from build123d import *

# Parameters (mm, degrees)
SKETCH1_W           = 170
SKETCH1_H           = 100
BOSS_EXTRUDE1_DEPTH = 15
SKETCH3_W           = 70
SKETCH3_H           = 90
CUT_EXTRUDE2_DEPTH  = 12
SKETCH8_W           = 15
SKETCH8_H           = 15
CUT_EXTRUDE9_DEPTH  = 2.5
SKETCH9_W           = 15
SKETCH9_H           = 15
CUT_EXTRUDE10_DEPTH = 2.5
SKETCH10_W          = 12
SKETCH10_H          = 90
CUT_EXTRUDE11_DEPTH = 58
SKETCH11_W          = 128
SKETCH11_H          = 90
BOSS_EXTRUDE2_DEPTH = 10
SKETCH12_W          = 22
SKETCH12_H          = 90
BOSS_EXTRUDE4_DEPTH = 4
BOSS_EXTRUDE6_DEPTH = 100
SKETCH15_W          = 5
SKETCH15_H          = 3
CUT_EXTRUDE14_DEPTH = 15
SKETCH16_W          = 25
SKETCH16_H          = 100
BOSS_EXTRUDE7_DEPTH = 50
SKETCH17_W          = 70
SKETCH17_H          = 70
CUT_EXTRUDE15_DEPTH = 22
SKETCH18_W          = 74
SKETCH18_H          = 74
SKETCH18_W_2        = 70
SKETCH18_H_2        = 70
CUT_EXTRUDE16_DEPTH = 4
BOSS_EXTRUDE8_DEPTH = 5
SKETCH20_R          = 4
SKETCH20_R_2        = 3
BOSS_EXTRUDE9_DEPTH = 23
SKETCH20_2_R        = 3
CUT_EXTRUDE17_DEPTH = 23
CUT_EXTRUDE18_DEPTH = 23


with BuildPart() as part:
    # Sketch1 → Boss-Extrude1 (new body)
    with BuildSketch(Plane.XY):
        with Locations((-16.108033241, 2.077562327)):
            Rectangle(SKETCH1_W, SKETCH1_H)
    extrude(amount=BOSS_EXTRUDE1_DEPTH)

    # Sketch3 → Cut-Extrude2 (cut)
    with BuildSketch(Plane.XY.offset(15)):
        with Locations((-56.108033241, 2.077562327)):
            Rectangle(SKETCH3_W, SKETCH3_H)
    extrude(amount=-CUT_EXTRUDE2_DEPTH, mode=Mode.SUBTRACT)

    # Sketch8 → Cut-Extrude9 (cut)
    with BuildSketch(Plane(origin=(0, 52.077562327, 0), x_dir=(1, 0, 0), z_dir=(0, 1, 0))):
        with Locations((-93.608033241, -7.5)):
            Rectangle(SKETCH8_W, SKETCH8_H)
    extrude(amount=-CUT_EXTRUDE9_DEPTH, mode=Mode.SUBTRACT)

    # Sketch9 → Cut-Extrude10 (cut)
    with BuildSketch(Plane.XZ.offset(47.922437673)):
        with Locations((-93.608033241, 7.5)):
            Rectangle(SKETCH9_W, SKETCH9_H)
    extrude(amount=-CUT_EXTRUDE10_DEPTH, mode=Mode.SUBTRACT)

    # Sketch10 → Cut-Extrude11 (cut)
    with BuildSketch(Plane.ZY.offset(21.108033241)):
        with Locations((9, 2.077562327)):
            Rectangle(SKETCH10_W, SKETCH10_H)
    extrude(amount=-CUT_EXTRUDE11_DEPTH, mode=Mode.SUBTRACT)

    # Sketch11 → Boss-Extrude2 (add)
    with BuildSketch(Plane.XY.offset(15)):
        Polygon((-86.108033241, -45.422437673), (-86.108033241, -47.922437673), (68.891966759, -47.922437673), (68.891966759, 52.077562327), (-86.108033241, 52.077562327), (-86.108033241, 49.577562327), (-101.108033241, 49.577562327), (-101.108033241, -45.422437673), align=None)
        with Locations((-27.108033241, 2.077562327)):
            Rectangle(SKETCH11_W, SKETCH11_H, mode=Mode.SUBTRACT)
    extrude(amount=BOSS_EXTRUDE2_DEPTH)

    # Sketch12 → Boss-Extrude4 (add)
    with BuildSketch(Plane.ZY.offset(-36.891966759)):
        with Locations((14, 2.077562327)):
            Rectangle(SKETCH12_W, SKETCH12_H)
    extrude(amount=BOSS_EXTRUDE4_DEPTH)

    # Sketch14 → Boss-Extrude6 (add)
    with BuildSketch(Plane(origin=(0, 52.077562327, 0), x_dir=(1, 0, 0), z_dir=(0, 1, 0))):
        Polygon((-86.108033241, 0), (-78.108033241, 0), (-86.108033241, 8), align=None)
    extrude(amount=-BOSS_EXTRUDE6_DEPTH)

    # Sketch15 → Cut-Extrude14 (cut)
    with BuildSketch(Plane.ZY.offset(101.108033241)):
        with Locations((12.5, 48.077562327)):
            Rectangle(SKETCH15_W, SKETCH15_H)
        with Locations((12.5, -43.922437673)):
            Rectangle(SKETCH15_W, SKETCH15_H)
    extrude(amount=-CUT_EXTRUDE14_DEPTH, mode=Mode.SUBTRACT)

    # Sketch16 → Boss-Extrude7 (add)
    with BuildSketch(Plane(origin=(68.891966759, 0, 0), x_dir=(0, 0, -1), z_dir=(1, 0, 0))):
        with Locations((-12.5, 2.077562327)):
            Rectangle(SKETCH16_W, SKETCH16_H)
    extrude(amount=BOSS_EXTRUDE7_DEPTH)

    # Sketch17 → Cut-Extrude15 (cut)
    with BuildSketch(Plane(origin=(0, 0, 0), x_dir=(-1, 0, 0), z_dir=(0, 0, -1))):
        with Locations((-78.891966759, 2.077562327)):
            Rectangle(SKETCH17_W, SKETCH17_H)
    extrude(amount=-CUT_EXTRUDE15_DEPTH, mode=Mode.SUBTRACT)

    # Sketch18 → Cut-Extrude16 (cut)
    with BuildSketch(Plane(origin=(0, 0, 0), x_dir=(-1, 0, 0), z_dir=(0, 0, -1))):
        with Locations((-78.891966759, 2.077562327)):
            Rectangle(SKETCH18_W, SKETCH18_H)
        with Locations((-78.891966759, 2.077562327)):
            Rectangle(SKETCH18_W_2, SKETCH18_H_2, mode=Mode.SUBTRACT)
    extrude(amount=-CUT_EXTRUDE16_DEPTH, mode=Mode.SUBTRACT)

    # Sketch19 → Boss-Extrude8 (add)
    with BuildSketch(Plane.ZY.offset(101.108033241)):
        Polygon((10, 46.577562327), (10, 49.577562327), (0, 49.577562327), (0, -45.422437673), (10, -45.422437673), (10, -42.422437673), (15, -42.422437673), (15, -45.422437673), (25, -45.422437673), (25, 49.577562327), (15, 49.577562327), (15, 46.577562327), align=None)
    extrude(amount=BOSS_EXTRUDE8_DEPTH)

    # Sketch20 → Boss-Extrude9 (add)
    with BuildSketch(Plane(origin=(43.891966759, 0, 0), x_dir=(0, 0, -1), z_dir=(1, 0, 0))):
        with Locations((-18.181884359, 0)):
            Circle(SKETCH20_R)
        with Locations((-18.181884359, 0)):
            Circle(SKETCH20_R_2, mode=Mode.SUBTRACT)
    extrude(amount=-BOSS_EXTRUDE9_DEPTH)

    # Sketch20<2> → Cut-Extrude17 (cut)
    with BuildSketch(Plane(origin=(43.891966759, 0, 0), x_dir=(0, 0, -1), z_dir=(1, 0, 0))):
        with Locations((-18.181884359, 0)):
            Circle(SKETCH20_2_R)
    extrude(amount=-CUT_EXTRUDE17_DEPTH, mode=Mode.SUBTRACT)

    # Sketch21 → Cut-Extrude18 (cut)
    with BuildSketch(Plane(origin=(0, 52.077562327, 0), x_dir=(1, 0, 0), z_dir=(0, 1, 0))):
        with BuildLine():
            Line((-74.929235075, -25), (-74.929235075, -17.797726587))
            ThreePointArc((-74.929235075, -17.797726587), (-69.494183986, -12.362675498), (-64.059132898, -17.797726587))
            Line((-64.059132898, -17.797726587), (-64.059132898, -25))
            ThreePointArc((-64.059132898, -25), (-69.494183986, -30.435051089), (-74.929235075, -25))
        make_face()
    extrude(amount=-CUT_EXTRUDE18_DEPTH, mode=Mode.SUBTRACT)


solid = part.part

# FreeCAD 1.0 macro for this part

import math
import FreeCAD as App
import Part
import Sketcher
Q = App.Units.Quantity


def add_polygon(sketch, points):
    """Adds a closed chain of lines whose ends are joined by coincident constraints."""
    first, n = sketch.GeometryCount, len(points)
    for a, b in zip(points, points[1:] + points[:1]):
        sketch.addGeometry(Part.LineSegment(App.Vector(*a, 0), App.Vector(*b, 0)), False)
    for i in range(n):
        sketch.addConstraint(Sketcher.Constraint("Coincident", first + i, 2, first + (i + 1) % n, 1))

doc = App.newDocument("Part")
params = doc.addObject("Spreadsheet::Sheet", "Params")
for row, (alias, value) in enumerate([
    ("sketch1_width", "170 mm"),
    ("sketch1_height", "100 mm"),
    ("pad1_length", "15 mm"),
    ("sketch2_width", "70 mm"),
    ("sketch2_height", "90 mm"),
    ("pocket1_length", "12 mm"),
    ("sketch3_width", "15 mm"),
    ("pocket2_length", "2.5 mm"),
    ("sketch4_width", "15 mm"),
    ("pocket3_length", "2.5 mm"),
    ("sketch5_width", "90 mm"),
    ("sketch5_height", "12 mm"),
    ("pocket4_length", "58 mm"),
    ("sketch6_width", "155 mm"),
    ("sketch6_width2", "15 mm"),
    ("sketch6_width3", "128 mm"),
    ("sketch6_height", "100 mm"),
    ("sketch6_height2", "95 mm"),
    ("pad2_length", "10 mm"),
    ("sketch7_width", "90 mm"),
    ("sketch7_height", "22 mm"),
    ("pad3_length", "4 mm"),
    ("sketch8_width", "8 mm"),
    ("pad4_length", "100 mm"),
    ("sketch9_width", "3 mm"),
    ("sketch9_height", "5 mm"),
    ("pocket5_length", "15 mm"),
    ("sketch10_width", "100 mm"),
    ("sketch10_height", "25 mm"),
    ("pad5_length", "50 mm"),
    ("sketch11_width", "70 mm"),
    ("pocket6_length", "22 mm"),
    ("sketch12_width", "74 mm"),
    ("sketch12_width2", "70 mm"),
    ("pocket7_length", "4 mm"),
    ("sketch13_width", "3 mm"),
    ("sketch13_width2", "95 mm"),
    ("sketch13_height", "10 mm"),
    ("sketch13_height2", "5 mm"),
    ("pad6_length", "5 mm"),
    ("sketch14_diameter", "8 mm"),
    ("sketch14_diameter2", "6 mm"),
    ("pad7_length", "23 mm"),
    ("sketch15_diameter", "6 mm"),
    ("pocket8_length", "23 mm"),
    ("pocket9_length", "23 mm"),
], start=1):
    params.set(f"A{row}", alias)
    params.set(f"B{row}", "=" + value)
    params.setAlias(f"B{row}", alias)

body = doc.addObject("PartDesign::Body", "Body")

sketch1 = doc.addObject("Sketcher::SketchObject", "Sketch")
body.addObject(sketch1)
sketch1.AttachmentSupport = (doc.XY_Plane, [""])
sketch1.MapMode = "FlatFace"
add_polygon(sketch1, [(-101, 52), (-101, -48), (69, -48), (69, 52)])
sketch1.addConstraint([
    Sketcher.Constraint("Vertical", 0),
    Sketcher.Constraint("Horizontal", 1),
    Sketcher.Constraint("Vertical", 2),
    Sketcher.Constraint("Horizontal", 3),
    Sketcher.Constraint("DistanceX", 1, 1, 1, 2, Q("170 mm")),
    Sketcher.Constraint("DistanceY", 0, 2, 0, 1, Q("100 mm")),
    Sketcher.Constraint("DistanceX", 0, 2, -1, 1, Q("101.108033 mm")),
    Sketcher.Constraint("DistanceY", 0, 2, -1, 1, Q("47.922438 mm")),
])
sketch1.setExpression("Constraints[8]", "Params.sketch1_width")
sketch1.setExpression("Constraints[9]", "Params.sketch1_height")
pad1 = doc.addObject("PartDesign::Pad", "Pad")
body.addObject(pad1)
pad1.Profile = sketch1
pad1.setExpression("Length", "Params.pad1_length")

sketch2 = doc.addObject("Sketcher::SketchObject", "Sketch001")
body.addObject(sketch2)
sketch2.AttachmentSupport = (doc.XY_Plane, [""])
sketch2.MapMode = "FlatFace"
sketch2.AttachmentOffset = App.Placement(App.Vector(0, 0, 15), App.Rotation())
add_polygon(sketch2, [(-91, 47), (-91, -43), (-21, -43), (-21, 47)])
sketch2.addConstraint([
    Sketcher.Constraint("Vertical", 0),
    Sketcher.Constraint("Horizontal", 1),
    Sketcher.Constraint("Vertical", 2),
    Sketcher.Constraint("Horizontal", 3),
    Sketcher.Constraint("DistanceX", 1, 1, 1, 2, Q("70 mm")),
    Sketcher.Constraint("DistanceY", 0, 2, 0, 1, Q("90 mm")),
    Sketcher.Constraint("DistanceX", 0, 2, -1, 1, Q("91.108033 mm")),
    Sketcher.Constraint("DistanceY", 0, 2, -1, 1, Q("42.922438 mm")),
])
sketch2.setExpression("Constraints[8]", "Params.sketch2_width")
sketch2.setExpression("Constraints[9]", "Params.sketch2_height")
pocket1 = doc.addObject("PartDesign::Pocket", "Pocket")
body.addObject(pocket1)
pocket1.Profile = sketch2
pocket1.setExpression("Length", "Params.pocket1_length")

sketch3 = doc.addObject("Sketcher::SketchObject", "Sketch002")
body.addObject(sketch3)
sketch3.AttachmentSupport = (doc.XZ_Plane, [""])
sketch3.MapMode = "FlatFace"
sketch3.AttachmentOffset = App.Placement(App.Vector(0, 0, -52.077562), App.Rotation())
add_polygon(sketch3, [(-101, 0), (-101, 15), (-86, 15), (-86, 0)])
sketch3.addConstraint([
    Sketcher.Constraint("Vertical", 0),
    Sketcher.Constraint("Horizontal", 1),
    Sketcher.Constraint("Vertical", 2),
    Sketcher.Constraint("Horizontal", 3),
    Sketcher.Constraint("PointOnObject", 2, 2, -1),
    Sketcher.Constraint("Equal", 3, 0),
    Sketcher.Constraint("DistanceX", 1, 1, 1, 2, Q("15 mm")),
    Sketcher.Constraint("DistanceX", 0, 2, -1, 1, Q("101.108033 mm")),
])
sketch3.setExpression("Constraints[10]", "Params.sketch3_width")
pocket2 = doc.addObject("PartDesign::Pocket", "Pocket001")
body.addObject(pocket2)
pocket2.Profile = sketch3
pocket2.setExpression("Length", "Params.pocket2_length")
pocket2.Reversed = True

sketch4 = doc.addObject("Sketcher::SketchObject", "Sketch003")
body.addObject(sketch4)
sketch4.AttachmentSupport = (doc.XZ_Plane, [""])
sketch4.MapMode = "FlatFace"
sketch4.AttachmentOffset = App.Placement(App.Vector(0, 0, 47.922438), App.Rotation())
add_polygon(sketch4, [(-101, 15), (-101, 0), (-86, 0), (-86, 15)])
sketch4.addConstraint([
    Sketcher.Constraint("Vertical", 0),
    Sketcher.Constraint("Horizontal", 1),
    Sketcher.Constraint("Vertical", 2),
    Sketcher.Constraint("Horizontal", 3),
    Sketcher.Constraint("PointOnObject", 0, 2, -1),
    Sketcher.Constraint("Equal", 3, 0),
    Sketcher.Constraint("DistanceX", 1, 1, 1, 2, Q("15 mm")),
    Sketcher.Constraint("DistanceX", 0, 2, -1, 1, Q("101.108033 mm")),
])
sketch4.setExpression("Constraints[10]", "Params.sketch4_width")
pocket3 = doc.addObject("PartDesign::Pocket", "Pocket002")
body.addObject(pocket3)
pocket3.Profile = sketch4
pocket3.setExpression("Length", "Params.pocket3_length")

sketch5 = doc.addObject("Sketcher::SketchObject", "Sketch004")
body.addObject(sketch5)
sketch5.AttachmentSupport = (doc.YZ_Plane, [""])
sketch5.MapMode = "FlatFace"
sketch5.AttachmentOffset = App.Placement(App.Vector(0, 0, -21.108033), App.Rotation())
add_polygon(sketch5, [(47, 3), (-43, 3), (-43, 15), (47, 15)])
sketch5.addConstraint([
    Sketcher.Constraint("Horizontal", 0),
    Sketcher.Constraint("Vertical", 1),
    Sketcher.Constraint("Horizontal", 2),
    Sketcher.Constraint("Vertical", 3),
    Sketcher.Constraint("DistanceX", 0, 2, 0, 1, Q("90 mm")),
    Sketcher.Constraint("DistanceY", 1, 1, 1, 2, Q("12 mm")),
    Sketcher.Constraint("DistanceY", -1, 1, 0, 2, Q("3 mm")),
    Sketcher.Constraint("DistanceX", 0, 2, -1, 1, Q("42.922438 mm")),
])
sketch5.setExpression("Constraints[8]", "Params.sketch5_width")
sketch5.setExpression("Constraints[9]", "Params.sketch5_height")
pocket4 = doc.addObject("PartDesign::Pocket", "Pocket003")
body.addObject(pocket4)
pocket4.Profile = sketch5
pocket4.setExpression("Length", "Params.pocket4_length")
pocket4.Reversed = True

sketch6 = doc.addObject("Sketcher::SketchObject", "Sketch005")
body.addObject(sketch6)
sketch6.AttachmentSupport = (doc.XY_Plane, [""])
sketch6.MapMode = "FlatFace"
sketch6.AttachmentOffset = App.Placement(App.Vector(0, 0, 15), App.Rotation())
add_polygon(sketch6, [(-86.1, -45.4), (-86.1, -47.9), (68.9, -47.9), (68.9, 52.1), (-86.1, 52.1), (-86.1, 49.6), (-101.1, 49.6), (-101.1, -45.4)])
add_polygon(sketch6, [(36.9, -42.9), (-91.1, -42.9), (-91.1, 47.1), (36.9, 47.1)])
sketch6.addConstraint([
    Sketcher.Constraint("Vertical", 0),
    Sketcher.Constraint("Horizontal", 1),
    Sketcher.Constraint("Vertical", 2),
    Sketcher.Constraint("Horizontal", 3),
    Sketcher.Constraint("Vertical", 4),
    Sketcher.Constraint("Horizontal", 5),
    Sketcher.Constraint("Vertical", 6),
    Sketcher.Constraint("Horizontal", 7),
    Sketcher.Constraint("Horizontal", 8),
    Sketcher.Constraint("Vertical", 9),
    Sketcher.Constraint("Horizontal", 10),
    Sketcher.Constraint("Vertical", 11),
    Sketcher.Constraint("Vertical", 0, 2, 3, 2),
    Sketcher.Constraint("Equal", 0, 4),
    Sketcher.Constraint("DistanceX", 1, 1, 1, 2, Q("155 mm")),
    Sketcher.Constraint("DistanceX", 5, 2, 5, 1, Q("15 mm")),
    Sketcher.Constraint("DistanceX", 8, 2, 8, 1, Q("128 mm")),
    Sketcher.Constraint("DistanceY", 2, 1, 2, 2, Q("100 mm")),
    Sketcher.Constraint("DistanceY", 6, 2, 6, 1, Q("95 mm")),
    Sketcher.Constraint("DistanceY", 9, 1, 9, 2, Q("90 mm")),
    Sketcher.Constraint("DistanceX", 8, 2, 7, 2, Q("5 mm")),
    Sketcher.Constraint("DistanceY", 0, 2, 8, 2, Q("5 mm")),
    Sketcher.Constraint("DistanceX", 0, 2, -1, 1, Q("86.108033 mm")),
    Sketcher.Constraint("DistanceY", 0, 2, -1, 1, Q("47.922438 mm")),
])
sketch6.setExpression("Constraints[26]", "Params.sketch6_width")
sketch6.setExpression("Constraints[27]", "Params.sketch6_width2")
sketch6.setExpression("Constraints[28]", "Params.sketch6_width3")
sketch6.setExpression("Constraints[29]", "Params.sketch6_height")
sketch6.setExpression("Constraints[30]", "Params.sketch6_height2")
pad2 = doc.addObject("PartDesign::Pad", "Pad001")
body.addObject(pad2)
pad2.Profile = sketch6
pad2.setExpression("Length", "Params.pad2_length")

sketch7 = doc.addObject("Sketcher::SketchObject", "Sketch006")
body.addObject(sketch7)
sketch7.AttachmentSupport = (doc.YZ_Plane, [""])
sketch7.MapMode = "FlatFace"
sketch7.AttachmentOffset = App.Placement(App.Vector(0, 0, 36.891967), App.Rotation())
add_polygon(sketch7, [(47, 3), (-43, 3), (-43, 25), (47, 25)])
sketch7.addConstraint([
    Sketcher.Constraint("Horizontal", 0),
    Sketcher.Constraint("Vertical", 1),
    Sketcher.Constraint("Horizontal", 2),
    Sketcher.Constraint("Vertical", 3),
    Sketcher.Constraint("DistanceX", 0, 2, 0, 1, Q("90 mm")),
    Sketcher.Constraint("DistanceY", 1, 1, 1, 2, Q("22 mm")),
    Sketcher.Constraint("DistanceY", -1, 1, 0, 2, Q("3 mm")),
    Sketcher.Constraint("DistanceX", 0, 2, -1, 1, Q("42.922438 mm")),
])
sketch7.setExpression("Constraints[8]", "Params.sketch7_width")
sketch7.setExpression("Constraints[9]", "Params.sketch7_height")
pad3 = doc.addObject("PartDesign::Pad", "Pad002")
body.addObject(pad3)
pad3.Profile = sketch7
pad3.setExpression("Length", "Params.pad3_length")
pad3.Reversed = True

sketch8 = doc.addObject("Sketcher::SketchObject", "Sketch007")
body.addObject(sketch8)
sketch8.AttachmentSupport = (doc.XZ_Plane, [""])
sketch8.MapMode = "FlatFace"
sketch8.AttachmentOffset = App.Placement(App.Vector(0, 0, -52.077562), App.Rotation())
add_polygon(sketch8, [(-86, 0), (-78, 0), (-86, -8)])
sketch8.addConstraint([
    Sketcher.Constraint("Horizontal", 0),
    Sketcher.Constraint("Vertical", 2),
    Sketcher.Constraint("PointOnObject", 0, 2, -1),
    Sketcher.Constraint("Equal", 0, 2),
    Sketcher.Constraint("DistanceX", 0, 1, 0, 2, Q("8 mm")),
    Sketcher.Constraint("DistanceX", 0, 2, -1, 1, Q("78.108033 mm")),
])
sketch8.setExpression("Constraints[7]", "Params.sketch8_width")
pad4 = doc.addObject("PartDesign::Pad", "Pad003")
body.addObject(pad4)
pad4.Profile = sketch8
pad4.setExpression("Length", "Params.pad4_length")

sketch9 = doc.addObject("Sketcher::SketchObject", "Sketch008")
body.addObject(sketch9)
sketch9.AttachmentSupport = (doc.YZ_Plane, [""])
sketch9.MapMode = "FlatFace"
sketch9.AttachmentOffset = App.Placement(App.Vector(0, 0, -101.108033), App.Rotation())
add_polygon(sketch9, [(49.6, 10), (46.6, 10), (46.6, 15), (49.6, 15)])
add_polygon(sketch9, [(-42.4, 10), (-45.4, 10), (-45.4, 15), (-42.4, 15)])
sketch9.addConstraint([
    Sketcher.Constraint("Horizontal", 0),
    Sketcher.Constraint("Vertical", 1),
    Sketcher.Constraint("Horizontal", 2),
    Sketcher.Constraint("Vertical", 3),
    Sketcher.Constraint("Horizontal", 4),
    Sketcher.Constraint("Vertical", 5),
    Sketcher.Constraint("Horizontal", 6),
    Sketcher.Constraint("Vertical", 7),
    Sketcher.Constraint("Horizontal", 3, 2, 4, 2),
    Sketcher.Constraint("Horizontal", 2, 2, 5, 2),
    Sketcher.Constraint("Equal", 2, 4),
    Sketcher.Constraint("DistanceX", 0, 2, 0, 1, Q("3 mm")),
    Sketcher.Constraint("DistanceY", 1, 1, 1, 2, Q("5 mm")),
    Sketcher.Constraint("DistanceY", -1, 1, 0, 2, Q("10 mm")),
    Sketcher.Constraint("DistanceX", 4, 2, 0, 2, Q("92 mm")),
    Sketcher.Constraint("DistanceX", -1, 1, 0, 2, Q("46.577562 mm")),
])
sketch9.setExpression("Constraints[19]", "Params.sketch9_width")
sketch9.setExpression("Constraints[20]", "Params.sketch9_height")
pocket5 = doc.addObject("PartDesign::Pocket", "Pocket004")
body.addObject(pocket5)
pocket5.Profile = sketch9
pocket5.setExpression("Length", "Params.pocket5_length")
pocket5.Reversed = True

sketch10 = doc.addObject("Sketcher::SketchObject", "Sketch009")
body.addObject(sketch10)
sketch10.AttachmentSupport = (doc.YZ_Plane, [""])
sketch10.MapMode = "FlatFace"
sketch10.AttachmentOffset = App.Placement(App.Vector(0, 0, 68.891967), App.Rotation())
add_polygon(sketch10, [(52, 25), (-48, 25), (-48, 0), (52, 0)])
sketch10.addConstraint([
    Sketcher.Constraint("Horizontal", 0),
    Sketcher.Constraint("Vertical", 1),
    Sketcher.Constraint("Horizontal", 2),
    Sketcher.Constraint("Vertical", 3),
    Sketcher.Constraint("PointOnObject", 1, 2, -1),
    Sketcher.Constraint("DistanceX", 0, 2, 0, 1, Q("100 mm")),
    Sketcher.Constraint("DistanceY", 1, 2, 1, 1, Q("25 mm")),
    Sketcher.Constraint("DistanceX", 0, 2, -1, 1, Q("47.922438 mm")),
])
sketch10.setExpression("Constraints[9]", "Params.sketch10_width")
sketch10.setExpression("Constraints[10]", "Params.sketch10_height")
pad5 = doc.addObject("PartDesign::Pad", "Pad004")
body.addObject(pad5)
pad5.Profile = sketch10
pad5.setExpression("Length", "Params.pad5_length")

sketch11 = doc.addObject("Sketcher::SketchObject", "Sketch010")
body.addObject(sketch11)
sketch11.AttachmentSupport = (doc.XY_Plane, [""])
sketch11.MapMode = "FlatFace"
add_polygon(sketch11, [(114, 37), (114, -33), (44, -33), (44, 37)])
sketch11.addConstraint([
    Sketcher.Constraint("Vertical", 0),
    Sketcher.Constraint("Horizontal", 1),
    Sketcher.Constraint("Vertical", 2),
    Sketcher.Constraint("Horizontal", 3),
    Sketcher.Constraint("Equal", 3, 0),
    Sketcher.Constraint("DistanceX", 1, 2, 1, 1, Q("70 mm")),
    Sketcher.Constraint("DistanceX", -1, 1, 0, 2, Q("113.891967 mm")),
    Sketcher.Constraint("DistanceY", 0, 2, -1, 1, Q("32.922438 mm")),
])
sketch11.setExpression("Constraints[9]", "Params.sketch11_width")
pocket6 = doc.addObject("PartDesign::Pocket", "Pocket005")
body.addObject(pocket6)
pocket6.Profile = sketch11
pocket6.setExpression("Length", "Params.pocket6_length")
pocket6.Reversed = True

sketch12 = doc.addObject("Sketcher::SketchObject", "Sketch011")
body.addObject(sketch12)
sketch12.AttachmentSupport = (doc.XY_Plane, [""])
sketch12.MapMode = "FlatFace"
add_polygon(sketch12, [(116, 39), (116, -35), (42, -35), (42, 39)])
add_polygon(sketch12, [(44, -33), (114, -33), (114, 37), (44, 37)])
sketch12.addConstraint([
    Sketcher.Constraint("Vertical", 0),
    Sketcher.Constraint("Horizontal", 1),
    Sketcher.Constraint("Vertical", 2),
    Sketcher.Constraint("Horizontal", 3),
    Sketcher.Constraint("Horizontal", 4),
    Sketcher.Constraint("Vertical", 5),
    Sketcher.Constraint("Horizontal", 6),
    Sketcher.Constraint("Vertical", 7),
    Sketcher.Constraint("Equal", 3, 0),
    Sketcher.Constraint("Equal", 6, 5),
    Sketcher.Constraint("DistanceX", 1, 2, 1, 1, Q("74 mm")),
    Sketcher.Constraint("DistanceX", 4, 1, 4, 2, Q("70 mm")),
    Sketcher.Constraint("DistanceX", 4, 2, 0, 2, Q("2 mm")),
    Sketcher.Constraint("DistanceY", 0, 2, 4, 2, Q("2 mm")),
    Sketcher.Constraint("DistanceX", -1, 1, 0, 2, Q("115.891967 mm")),
    Sketcher.Constraint("DistanceY", 0, 2, -1, 1, Q("34.922438 mm")),
])
sketch12.setExpression("Constraints[18]", "Params.sketch12_width")
sketch12.setExpression("Constraints[19]", "Params.sketch12_width2")
pocket7 = doc.addObject("PartDesign::Pocket", "Pocket006")
body.addObject(pocket7)
pocket7.Profile = sketch12
pocket7.setExpression("Length", "Params.pocket7_length")
pocket7.Reversed = True

sketch13 = doc.addObject("Sketcher::SketchObject", "Sketch012")
body.addObject(sketch13)
sketch13.AttachmentSupport = (doc.YZ_Plane, [""])
sketch13.MapMode = "FlatFace"
sketch13.AttachmentOffset = App.Placement(App.Vector(0, 0, -101.108033), App.Rotation())
add_polygon(sketch13, [(46.6, 10), (49.6, 10), (49.6, 0), (-45.4, 0), (-45.4, 10), (-42.4, 10), (-42.4, 15), (-45.4, 15), (-45.4, 25), (49.6, 25), (49.6, 15), (46.6, 15)])
sketch13.addConstraint([
    Sketcher.Constraint("Horizontal", 0),
    Sketcher.Constraint("Vertical", 1),
    Sketcher.Constraint("Horizontal", 2),
    Sketcher.Constraint("Vertical", 3),
    Sketcher.Constraint("Horizontal", 4),
    Sketcher.Constraint("Vertical", 5),
    Sketcher.Constraint("Horizontal", 6),
    Sketcher.Constraint("Vertical", 7),
    Sketcher.Constraint("Horizontal", 8),
    Sketcher.Constraint("Vertical", 9),
    Sketcher.Constraint("Horizontal", 10),
    Sketcher.Constraint("Vertical", 11),
    Sketcher.Constraint("PointOnObject", 1, 2, -1),
    Sketcher.Constraint("Horizontal", 0, 2, 3, 2),
    Sketcher.Constraint("Horizontal", 6, 2, 9, 2),
    Sketcher.Constraint("Vertical", 3, 2, 6, 2),
    Sketcher.Constraint("Vertical", 1, 2, 8, 2),
    Sketcher.Constraint("Equal", 0, 4),
    Sketcher.Constraint("Equal", 3, 7),
    Sketcher.Constraint("DistanceX", 0, 1, 0, 2, Q("3 mm")),
    Sketcher.Constraint("DistanceX", 2, 2, 2, 1, Q("95 mm")),
    Sketcher.Constraint("DistanceY", 1, 2, 1, 1, Q("10 mm")),
    Sketcher.Constraint("DistanceY", 5, 1, 5, 2, Q("5 mm")),
    Sketcher.Constraint("DistanceX", -1, 1, 0, 2, Q("49.577562 mm")),
])
sketch13.setExpression("Constraints[31]", "Params.sketch13_width")
sketch13.setExpression("Constraints[32]", "Params.sketch13_width2")
sketch13.setExpression("Constraints[33]", "Params.sketch13_height")
sketch13.setExpression("Constraints[34]", "Params.sketch13_height2")
pad6 = doc.addObject("PartDesign::Pad", "Pad005")
body.addObject(pad6)
pad6.Profile = sketch13
pad6.setExpression("Length", "Params.pad6_length")
pad6.Reversed = True

sketch14 = doc.addObject("Sketcher::SketchObject", "Sketch013")
body.addObject(sketch14)
sketch14.AttachmentSupport = (doc.YZ_Plane, [""])
sketch14.MapMode = "FlatFace"
sketch14.AttachmentOffset = App.Placement(App.Vector(0, 0, 43.891967), App.Rotation())
sketch14.addGeometry([
    Part.Circle(App.Vector(0, 18.2, 0), App.Vector(0, 0, 1), 4),
    Part.Circle(App.Vector(0, 18.2, 0), App.Vector(0, 0, 1), 3),
], False)
sketch14.addConstraint([
    Sketcher.Constraint("Coincident", 1, 3, 0, 3),
    Sketcher.Constraint("PointOnObject", 0, 3, -2),
    Sketcher.Constraint("Diameter", 0, Q("8 mm")),
    Sketcher.Constraint("Diameter", 1, Q("6 mm")),
    Sketcher.Constraint("DistanceY", -1, 1, 0, 3, Q("18.181884 mm")),
])
sketch14.setExpression("Constraints[2]", "Params.sketch14_diameter")
sketch14.setExpression("Constraints[3]", "Params.sketch14_diameter2")
pad7 = doc.addObject("PartDesign::Pad", "Pad006")
body.addObject(pad7)
pad7.Profile = sketch14
pad7.setExpression("Length", "Params.pad7_length")
pad7.Reversed = True

sketch15 = doc.addObject("Sketcher::SketchObject", "Sketch014")
body.addObject(sketch15)
sketch15.AttachmentSupport = (doc.YZ_Plane, [""])
sketch15.MapMode = "FlatFace"
sketch15.AttachmentOffset = App.Placement(App.Vector(0, 0, 43.891967), App.Rotation())
sketch15.addGeometry(Part.Circle(App.Vector(0, 18.2, 0), App.Vector(0, 0, 1), 3), False)
sketch15.addConstraint([
    Sketcher.Constraint("PointOnObject", 0, 3, -2),
    Sketcher.Constraint("Diameter", 0, Q("6 mm")),
    Sketcher.Constraint("DistanceY", -1, 1, 0, 3, Q("18.181884 mm")),
])
sketch15.setExpression("Constraints[1]", "Params.sketch15_diameter")
pocket8 = doc.addObject("PartDesign::Pocket", "Pocket007")
body.addObject(pocket8)
pocket8.Profile = sketch15
pocket8.setExpression("Length", "Params.pocket8_length")

sketch16 = doc.addObject("Sketcher::SketchObject", "Sketch015")
body.addObject(sketch16)
sketch16.AttachmentSupport = (doc.XZ_Plane, [""])
sketch16.MapMode = "FlatFace"
sketch16.AttachmentOffset = App.Placement(App.Vector(0, 0, -52.077562), App.Rotation())
sketch16.addGeometry([
    Part.LineSegment(App.Vector(-75, 18, 0), App.Vector(-75, 25, 0)),
    Part.ArcOfCircle(Part.Circle(App.Vector(-69, 25, 0), App.Vector(0, 0, 1), 5), math.radians(0), math.radians(180)),
    Part.LineSegment(App.Vector(-64, 25, 0), App.Vector(-64, 18, 0)),
    Part.ArcOfCircle(Part.Circle(App.Vector(-69, 18, 0), App.Vector(0, 0, 1), 5), math.radians(180), math.radians(360)),
], False)
sketch16.addConstraint([
    Sketcher.Constraint("Tangent", 0, 2, 1, 2),
    Sketcher.Constraint("Tangent", 1, 1, 2, 1),
    Sketcher.Constraint("Tangent", 2, 2, 3, 2),
    Sketcher.Constraint("Tangent", 3, 1, 0, 1),
    Sketcher.Constraint("Vertical", 0),
    Sketcher.Constraint("Vertical", 2),
    Sketcher.Constraint("DistanceY", -1, 1, 1, 3, Q("25 mm")),
    Sketcher.Constraint("Radius", 1, Q("5.435051 mm")),
    Sketcher.Constraint("DistanceY", 0, 1, 0, 2, Q("7.202273 mm")),
    Sketcher.Constraint("DistanceX", 1, 3, -1, 1, Q("69.494184 mm")),
])
pocket9 = doc.addObject("PartDesign::Pocket", "Pocket008")
body.addObject(pocket9)
pocket9.Profile = sketch16
pocket9.setExpression("Length", "Params.pocket9_length")
pocket9.Reversed = True

doc.recompute()
